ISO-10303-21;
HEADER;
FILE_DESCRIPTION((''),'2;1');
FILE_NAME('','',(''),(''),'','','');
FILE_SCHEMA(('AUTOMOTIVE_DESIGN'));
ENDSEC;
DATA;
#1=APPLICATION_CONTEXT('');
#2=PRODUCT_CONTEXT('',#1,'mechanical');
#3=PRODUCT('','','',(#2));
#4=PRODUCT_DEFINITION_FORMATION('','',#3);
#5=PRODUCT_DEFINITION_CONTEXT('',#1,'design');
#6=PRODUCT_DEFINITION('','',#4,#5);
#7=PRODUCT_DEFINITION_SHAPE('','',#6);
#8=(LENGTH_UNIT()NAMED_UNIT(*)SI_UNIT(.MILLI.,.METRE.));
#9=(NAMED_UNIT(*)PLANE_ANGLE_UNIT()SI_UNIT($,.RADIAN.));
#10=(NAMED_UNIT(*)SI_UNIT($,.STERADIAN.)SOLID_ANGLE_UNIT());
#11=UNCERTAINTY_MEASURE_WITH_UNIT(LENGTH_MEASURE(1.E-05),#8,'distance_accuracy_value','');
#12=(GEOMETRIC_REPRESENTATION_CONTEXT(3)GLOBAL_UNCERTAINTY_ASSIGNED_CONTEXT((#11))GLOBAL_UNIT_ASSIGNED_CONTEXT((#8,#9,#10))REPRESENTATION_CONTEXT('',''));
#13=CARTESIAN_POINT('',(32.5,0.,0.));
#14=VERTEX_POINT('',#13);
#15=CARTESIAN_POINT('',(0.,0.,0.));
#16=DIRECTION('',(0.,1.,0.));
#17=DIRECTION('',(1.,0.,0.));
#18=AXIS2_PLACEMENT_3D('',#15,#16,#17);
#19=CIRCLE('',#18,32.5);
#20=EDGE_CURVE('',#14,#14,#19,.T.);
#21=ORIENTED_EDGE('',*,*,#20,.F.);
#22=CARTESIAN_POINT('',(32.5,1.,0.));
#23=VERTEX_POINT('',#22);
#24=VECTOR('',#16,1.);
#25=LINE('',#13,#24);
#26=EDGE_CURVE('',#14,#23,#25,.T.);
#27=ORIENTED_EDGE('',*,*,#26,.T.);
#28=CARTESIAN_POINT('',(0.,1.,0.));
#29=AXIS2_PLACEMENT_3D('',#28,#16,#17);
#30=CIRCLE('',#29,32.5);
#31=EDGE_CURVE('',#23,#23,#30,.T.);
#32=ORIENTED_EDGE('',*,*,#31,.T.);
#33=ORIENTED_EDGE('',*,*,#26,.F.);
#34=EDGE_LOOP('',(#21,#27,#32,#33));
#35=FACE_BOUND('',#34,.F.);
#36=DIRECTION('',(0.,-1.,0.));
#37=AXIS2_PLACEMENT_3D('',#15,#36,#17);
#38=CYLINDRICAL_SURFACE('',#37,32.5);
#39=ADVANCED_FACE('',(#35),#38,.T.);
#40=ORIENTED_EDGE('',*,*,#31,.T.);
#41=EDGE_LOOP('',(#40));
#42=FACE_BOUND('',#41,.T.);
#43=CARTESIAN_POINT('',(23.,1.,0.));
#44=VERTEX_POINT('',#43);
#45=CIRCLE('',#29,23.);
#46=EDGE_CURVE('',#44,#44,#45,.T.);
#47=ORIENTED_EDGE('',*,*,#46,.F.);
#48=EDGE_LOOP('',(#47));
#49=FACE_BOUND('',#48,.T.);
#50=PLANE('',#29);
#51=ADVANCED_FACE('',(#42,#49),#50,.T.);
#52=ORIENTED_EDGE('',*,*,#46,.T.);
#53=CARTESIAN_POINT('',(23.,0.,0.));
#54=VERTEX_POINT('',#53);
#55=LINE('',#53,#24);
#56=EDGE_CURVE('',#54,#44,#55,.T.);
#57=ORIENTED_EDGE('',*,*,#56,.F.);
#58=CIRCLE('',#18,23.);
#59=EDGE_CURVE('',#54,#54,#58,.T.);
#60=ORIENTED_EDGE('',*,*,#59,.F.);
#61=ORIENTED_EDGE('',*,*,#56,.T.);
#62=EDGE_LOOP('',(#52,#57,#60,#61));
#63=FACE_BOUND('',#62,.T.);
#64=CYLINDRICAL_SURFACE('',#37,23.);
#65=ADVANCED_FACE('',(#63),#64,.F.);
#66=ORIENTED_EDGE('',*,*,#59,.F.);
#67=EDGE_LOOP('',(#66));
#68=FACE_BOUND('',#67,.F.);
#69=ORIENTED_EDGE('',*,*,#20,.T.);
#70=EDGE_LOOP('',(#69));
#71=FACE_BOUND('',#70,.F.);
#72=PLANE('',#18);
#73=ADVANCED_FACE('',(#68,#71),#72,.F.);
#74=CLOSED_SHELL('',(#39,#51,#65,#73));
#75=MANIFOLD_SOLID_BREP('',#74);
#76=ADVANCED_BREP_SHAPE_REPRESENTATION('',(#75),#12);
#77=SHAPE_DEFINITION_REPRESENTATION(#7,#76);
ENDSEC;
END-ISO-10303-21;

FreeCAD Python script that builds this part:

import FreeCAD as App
import Part
import Sketcher
Q = App.Units.Quantity

doc = App.newDocument("Part")
body = doc.addObject("PartDesign::Body", "Body")

sketch1 = body.newObject("Sketcher::SketchObject", "Sketch")
sketch1.AttachmentSupport = (doc.getObject("XZ_Plane"), [""])
sketch1.MapMode = "FlatFace"
sketch1.addGeometry(Part.Circle(App.Vector(0, 0, 0), App.Vector(0, 0, 1), 32.5), False)
sketch1.addGeometry(Part.Circle(App.Vector(0, 0, 0), App.Vector(0, 0, 1), 23), False)
sketch1.addConstraint(Sketcher.Constraint("Coincident", 0, 3, -1, 1))
sketch1.addConstraint(Sketcher.Constraint("Coincident", 1, 3, -1, 1))
sketch1.addConstraint(Sketcher.Constraint("Diameter", 0, Q("65 mm")))
sketch1.addConstraint(Sketcher.Constraint("Diameter", 1, Q("46 mm")))
pad1 = body.newObject("PartDesign::Pad", "Pad")
pad1.Profile = sketch1
pad1.Length = 1
pad1.Reversed = True

doc.recompute()
